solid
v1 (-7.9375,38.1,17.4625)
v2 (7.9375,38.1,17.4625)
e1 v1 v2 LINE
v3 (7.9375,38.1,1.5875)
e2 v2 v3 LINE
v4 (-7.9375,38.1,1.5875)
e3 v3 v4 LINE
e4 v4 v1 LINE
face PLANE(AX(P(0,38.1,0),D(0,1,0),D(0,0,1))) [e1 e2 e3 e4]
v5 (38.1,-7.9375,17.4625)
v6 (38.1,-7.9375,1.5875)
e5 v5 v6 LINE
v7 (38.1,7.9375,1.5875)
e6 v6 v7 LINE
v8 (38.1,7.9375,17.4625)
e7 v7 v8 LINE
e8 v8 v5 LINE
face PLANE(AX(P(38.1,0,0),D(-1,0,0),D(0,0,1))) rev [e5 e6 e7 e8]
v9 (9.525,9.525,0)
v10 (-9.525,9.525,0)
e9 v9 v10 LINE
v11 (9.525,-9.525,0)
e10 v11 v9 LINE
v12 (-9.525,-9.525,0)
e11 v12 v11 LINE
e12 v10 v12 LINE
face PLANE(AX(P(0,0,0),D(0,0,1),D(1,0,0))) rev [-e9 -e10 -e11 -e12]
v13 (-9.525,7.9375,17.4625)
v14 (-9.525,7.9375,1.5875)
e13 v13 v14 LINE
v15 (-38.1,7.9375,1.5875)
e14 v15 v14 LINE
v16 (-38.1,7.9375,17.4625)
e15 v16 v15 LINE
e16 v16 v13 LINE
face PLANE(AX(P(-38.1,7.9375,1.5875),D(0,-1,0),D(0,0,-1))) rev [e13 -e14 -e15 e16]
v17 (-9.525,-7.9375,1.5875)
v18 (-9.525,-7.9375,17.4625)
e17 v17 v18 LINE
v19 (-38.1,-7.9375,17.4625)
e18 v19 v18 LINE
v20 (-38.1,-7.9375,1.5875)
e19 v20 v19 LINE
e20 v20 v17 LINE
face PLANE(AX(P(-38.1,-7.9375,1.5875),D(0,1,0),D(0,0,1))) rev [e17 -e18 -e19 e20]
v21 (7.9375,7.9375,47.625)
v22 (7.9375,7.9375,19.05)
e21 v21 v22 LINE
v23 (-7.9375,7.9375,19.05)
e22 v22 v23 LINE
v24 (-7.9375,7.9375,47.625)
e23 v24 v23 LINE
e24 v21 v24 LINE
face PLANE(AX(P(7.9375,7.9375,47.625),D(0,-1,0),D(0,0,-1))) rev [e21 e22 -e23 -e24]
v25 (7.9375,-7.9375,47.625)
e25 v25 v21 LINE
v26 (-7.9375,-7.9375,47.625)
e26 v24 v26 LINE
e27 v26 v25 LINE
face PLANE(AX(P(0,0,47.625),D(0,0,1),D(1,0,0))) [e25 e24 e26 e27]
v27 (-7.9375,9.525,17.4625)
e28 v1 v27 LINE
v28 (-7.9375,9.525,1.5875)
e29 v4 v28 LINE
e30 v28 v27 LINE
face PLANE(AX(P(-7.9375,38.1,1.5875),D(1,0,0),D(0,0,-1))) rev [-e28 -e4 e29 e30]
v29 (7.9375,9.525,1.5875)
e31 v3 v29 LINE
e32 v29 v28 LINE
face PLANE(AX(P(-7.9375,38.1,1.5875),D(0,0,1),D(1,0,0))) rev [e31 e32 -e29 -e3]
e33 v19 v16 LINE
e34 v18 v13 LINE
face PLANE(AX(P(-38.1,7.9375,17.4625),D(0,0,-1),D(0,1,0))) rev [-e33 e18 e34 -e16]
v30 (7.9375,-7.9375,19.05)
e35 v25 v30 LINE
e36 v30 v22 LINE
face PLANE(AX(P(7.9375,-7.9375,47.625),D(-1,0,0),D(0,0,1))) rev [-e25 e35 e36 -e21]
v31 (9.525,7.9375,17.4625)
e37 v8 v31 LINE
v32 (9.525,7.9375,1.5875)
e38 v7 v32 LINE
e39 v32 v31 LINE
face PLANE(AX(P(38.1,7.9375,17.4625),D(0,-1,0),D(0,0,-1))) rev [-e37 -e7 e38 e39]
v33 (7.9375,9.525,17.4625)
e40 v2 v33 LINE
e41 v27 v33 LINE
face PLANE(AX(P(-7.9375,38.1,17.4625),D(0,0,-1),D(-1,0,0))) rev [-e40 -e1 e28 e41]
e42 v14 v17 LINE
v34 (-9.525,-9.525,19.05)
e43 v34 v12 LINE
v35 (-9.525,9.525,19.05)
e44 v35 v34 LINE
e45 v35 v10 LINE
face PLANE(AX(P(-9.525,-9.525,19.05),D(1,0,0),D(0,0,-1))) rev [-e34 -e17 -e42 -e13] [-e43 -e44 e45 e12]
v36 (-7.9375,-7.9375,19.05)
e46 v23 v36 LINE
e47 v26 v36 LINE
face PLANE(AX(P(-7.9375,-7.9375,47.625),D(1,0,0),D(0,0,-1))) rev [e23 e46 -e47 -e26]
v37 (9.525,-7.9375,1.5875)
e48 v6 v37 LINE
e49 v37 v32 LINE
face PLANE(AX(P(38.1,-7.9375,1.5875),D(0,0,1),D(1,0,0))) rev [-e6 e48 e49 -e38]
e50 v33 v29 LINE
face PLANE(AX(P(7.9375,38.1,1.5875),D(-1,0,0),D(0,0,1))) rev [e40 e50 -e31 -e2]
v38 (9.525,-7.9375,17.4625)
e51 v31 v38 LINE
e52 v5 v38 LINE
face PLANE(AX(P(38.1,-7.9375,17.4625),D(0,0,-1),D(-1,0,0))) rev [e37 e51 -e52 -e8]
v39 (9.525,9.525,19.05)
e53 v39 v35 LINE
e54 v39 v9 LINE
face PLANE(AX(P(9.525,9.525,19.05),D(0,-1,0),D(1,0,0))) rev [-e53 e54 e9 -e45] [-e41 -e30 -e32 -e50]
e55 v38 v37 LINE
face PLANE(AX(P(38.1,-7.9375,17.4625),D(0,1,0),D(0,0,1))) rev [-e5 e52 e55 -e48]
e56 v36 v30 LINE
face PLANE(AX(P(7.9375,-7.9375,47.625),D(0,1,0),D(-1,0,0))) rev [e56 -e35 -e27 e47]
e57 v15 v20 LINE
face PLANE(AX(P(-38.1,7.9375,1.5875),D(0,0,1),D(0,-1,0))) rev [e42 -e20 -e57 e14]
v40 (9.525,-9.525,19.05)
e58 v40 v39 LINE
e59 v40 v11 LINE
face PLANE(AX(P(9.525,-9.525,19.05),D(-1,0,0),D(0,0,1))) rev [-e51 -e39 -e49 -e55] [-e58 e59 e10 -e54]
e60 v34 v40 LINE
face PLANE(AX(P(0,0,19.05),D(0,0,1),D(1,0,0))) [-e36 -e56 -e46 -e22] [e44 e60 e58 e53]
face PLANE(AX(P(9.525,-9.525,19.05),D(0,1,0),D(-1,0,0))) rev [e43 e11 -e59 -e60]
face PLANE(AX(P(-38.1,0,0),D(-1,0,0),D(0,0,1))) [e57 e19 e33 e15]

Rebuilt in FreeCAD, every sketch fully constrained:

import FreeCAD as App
import Part
import Sketcher
Q = App.Units.Quantity


def add_polygon(sketch, points):
    """Adds a closed chain of lines whose ends are joined by coincident constraints."""
    first, n = sketch.GeometryCount, len(points)
    for a, b in zip(points, points[1:] + points[:1]):
        sketch.addGeometry(Part.LineSegment(App.Vector(*a, 0), App.Vector(*b, 0)), False)
    for i in range(n):
        sketch.addConstraint(Sketcher.Constraint("Coincident", first + i, 2, first + (i + 1) % n, 1))

doc = App.newDocument("Part")
params = doc.addObject("Spreadsheet::Sheet", "Params")
for row, (alias, value) in enumerate([
    ("sketch1_width", "0.75 in"),
    ("pad1_length", "0.75 in"),
    ("sketch2_width", "0.625 in"),
    ("pad2_length", "1.125 in"),
    ("sketch3_width", "0.625 in"),
    ("pad3_length", "1.125 in"),
    ("sketch4_width", "0.625 in"),
    ("pad4_length", "1.125 in"),
    ("sketch5_width", "0.625 in"),
    ("pad5_length", "1.125 in"),
], start=1):
    params.set(f"A{row}", alias)
    params.set(f"B{row}", "=" + value)
    params.setAlias(f"B{row}", alias)

body = doc.addObject("PartDesign::Body", "Body")

# Sketch on XY plane
sketch1 = doc.addObject("Sketcher::SketchObject", "Sketch")
body.addObject(sketch1)
sketch1.AttachmentSupport = (doc.XY_Plane, [""])
sketch1.MapMode = "FlatFace"
add_polygon(sketch1, [(-10, 10), (-10, -10), (10, -10), (10, 10)])  # lines 0-3
sketch1.addConstraint([
    Sketcher.Constraint("Vertical", 0),
    Sketcher.Constraint("Horizontal", 1),
    Sketcher.Constraint("Vertical", 2),
    Sketcher.Constraint("Horizontal", 3),
    Sketcher.Constraint("Symmetric", 0, 2, 2, 2, -1, 1),
    Sketcher.Constraint("Equal", 3, 0),
    Sketcher.Constraint("DistanceX", 1, 1, 1, 2, Q("0.75 in")),
])
sketch1.setExpression("Constraints[10]", "Params.sketch1_width")
pad1 = doc.addObject("PartDesign::Pad", "Pad")
body.addObject(pad1)
pad1.Profile = sketch1
pad1.setExpression("Length", "Params.pad1_length")

# Sketch on XZ plane
sketch2 = doc.addObject("Sketcher::SketchObject", "Sketch001")
body.addObject(sketch2)
sketch2.AttachmentSupport = (doc.XZ_Plane, [""])
sketch2.MapMode = "FlatFace"
sketch2.AttachmentOffset = App.Placement(App.Vector(0, 0, -0.375 * 25.4), App.Rotation())
add_polygon(sketch2, [(-8, 2), (-8, 17), (8, 17), (8, 2)])  # lines 0-3
sketch2.addConstraint([
    Sketcher.Constraint("Vertical", 0),
    Sketcher.Constraint("Horizontal", 1),
    Sketcher.Constraint("Vertical", 2),
    Sketcher.Constraint("Horizontal", 3),
    Sketcher.Constraint("Equal", 3, 0),
    Sketcher.Constraint("DistanceX", 1, 1, 1, 2, Q("0.625 in")),
    Sketcher.Constraint("DistanceX", 0, 2, -1, 1, Q("0.3125 in")),
    Sketcher.Constraint("DistanceY", -1, 1, 0, 2, Q("0.6875 in")),
])
sketch2.setExpression("Constraints[9]", "Params.sketch2_width")
pad2 = doc.addObject("PartDesign::Pad", "Pad001")
body.addObject(pad2)
pad2.Profile = sketch2
pad2.setExpression("Length", "Params.pad2_length")
pad2.Reversed = True

# Sketch on YZ plane
sketch3 = doc.addObject("Sketcher::SketchObject", "Sketch002")
body.addObject(sketch3)
sketch3.AttachmentSupport = (doc.YZ_Plane, [""])
sketch3.MapMode = "FlatFace"
sketch3.AttachmentOffset = App.Placement(App.Vector(0, 0, 0.375 * 25.4), App.Rotation())
add_polygon(sketch3, [(8, 17), (-8, 17), (-8, 2), (8, 2)])  # lines 0-3
sketch3.addConstraint([
    Sketcher.Constraint("Horizontal", 0),
    Sketcher.Constraint("Vertical", 1),
    Sketcher.Constraint("Horizontal", 2),
    Sketcher.Constraint("Vertical", 3),
    Sketcher.Constraint("Equal", 2, 1),
    Sketcher.Constraint("DistanceX", 0, 2, 0, 1, Q("0.625 in")),
    Sketcher.Constraint("DistanceX", 0, 2, -1, 1, Q("0.3125 in")),
    Sketcher.Constraint("DistanceY", -1, 1, 0, 2, Q("0.6875 in")),
])
sketch3.setExpression("Constraints[9]", "Params.sketch3_width")
pad3 = doc.addObject("PartDesign::Pad", "Pad002")
body.addObject(pad3)
pad3.Profile = sketch3
pad3.setExpression("Length", "Params.pad3_length")

# Sketch on XY plane
sketch4 = doc.addObject("Sketcher::SketchObject", "Sketch003")
body.addObject(sketch4)
sketch4.AttachmentSupport = (doc.XY_Plane, [""])
sketch4.MapMode = "FlatFace"
sketch4.AttachmentOffset = App.Placement(App.Vector(0, 0, 0.75 * 25.4), App.Rotation())
add_polygon(sketch4, [(-8, 8), (-8, -8), (8, -8), (8, 8)])  # lines 0-3
sketch4.addConstraint([
    Sketcher.Constraint("Vertical", 0),
    Sketcher.Constraint("Horizontal", 1),
    Sketcher.Constraint("Vertical", 2),
    Sketcher.Constraint("Horizontal", 3),
    Sketcher.Constraint("Symmetric", 0, 2, 2, 2, -1, 1),
    Sketcher.Constraint("Equal", 3, 0),
    Sketcher.Constraint("DistanceX", 1, 1, 1, 2, Q("0.625 in")),
])
sketch4.setExpression("Constraints[10]", "Params.sketch4_width")
pad4 = doc.addObject("PartDesign::Pad", "Pad003")
body.addObject(pad4)
pad4.Profile = sketch4
pad4.setExpression("Length", "Params.pad4_length")

# Sketch on YZ plane
sketch5 = doc.addObject("Sketcher::SketchObject", "Sketch004")
body.addObject(sketch5)
sketch5.AttachmentSupport = (doc.YZ_Plane, [""])
sketch5.MapMode = "FlatFace"
sketch5.AttachmentOffset = App.Placement(App.Vector(0, 0, -0.375 * 25.4), App.Rotation())
add_polygon(sketch5, [(8, 2), (-8, 2), (-8, 17), (8, 17)])  # lines 0-3
sketch5.addConstraint([
    Sketcher.Constraint("Horizontal", 0),
    Sketcher.Constraint("Vertical", 1),
    Sketcher.Constraint("Horizontal", 2),
    Sketcher.Constraint("Vertical", 3),
    Sketcher.Constraint("Equal", 2, 1),
    Sketcher.Constraint("DistanceX", 0, 2, 0, 1, Q("0.625 in")),
    Sketcher.Constraint("DistanceX", 0, 2, -1, 1, Q("0.3125 in")),
    Sketcher.Constraint("DistanceY", -1, 1, 0, 2, Q("0.0625 in")),
])
sketch5.setExpression("Constraints[9]", "Params.sketch5_width")
pad5 = doc.addObject("PartDesign::Pad", "Pad004")
body.addObject(pad5)
pad5.Profile = sketch5
pad5.setExpression("Length", "Params.pad5_length")
pad5.Reversed = True

doc.recompute()
